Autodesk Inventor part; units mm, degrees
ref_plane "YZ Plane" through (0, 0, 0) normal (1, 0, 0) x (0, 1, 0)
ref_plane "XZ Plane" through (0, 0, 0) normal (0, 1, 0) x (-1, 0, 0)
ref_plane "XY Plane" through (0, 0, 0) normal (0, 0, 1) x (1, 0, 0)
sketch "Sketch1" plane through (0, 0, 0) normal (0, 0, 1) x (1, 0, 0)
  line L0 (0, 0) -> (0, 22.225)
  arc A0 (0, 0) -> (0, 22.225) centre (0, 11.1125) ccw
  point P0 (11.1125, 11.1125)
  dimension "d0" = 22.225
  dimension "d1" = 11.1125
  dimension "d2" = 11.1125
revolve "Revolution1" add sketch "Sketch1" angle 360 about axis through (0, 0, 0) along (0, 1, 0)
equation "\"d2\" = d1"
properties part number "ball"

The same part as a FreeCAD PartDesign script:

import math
import FreeCAD as App
import Part
import Sketcher
from FreeCAD import Vector
Q = App.Units.Quantity

doc = App.newDocument("Part")
params = doc.addObject("Spreadsheet::Sheet", "Params")
for row, (alias, value) in enumerate([
    ("sketch1_radius", "0.4375 in"),
    ("revolution_angle", "360 deg"),
], start=1):
    params.set(f"A{row}", alias)
    params.set(f"B{row}", "=" + value)
    params.setAlias(f"B{row}", alias)

body = doc.addObject("PartDesign::Body", "Body")

sketch1 = body.newObject("Sketcher::SketchObject", "Sketch")
sketch1.AttachmentSupport = (doc.getObject("XY_Plane"), [""])
sketch1.MapMode = "FlatFace"
sketch1.addGeometry([
    Part.LineSegment(Vector(0, 22, 0), Vector(0, 0, 0)),
    Part.ArcOfCircle(Part.Circle(Vector(0, 11, 0), Vector(0, 0, 1), 11), math.radians(-90), math.radians(90)),
], False)
sketch1.addConstraint([
    Sketcher.Constraint("Coincident", 0, 1, 1, 2),
    Sketcher.Constraint("Coincident", 1, 1, 0, 2),
    Sketcher.Constraint("Vertical", 0),
    Sketcher.Constraint("Coincident", 1, 1, -1, 1),
    Sketcher.Constraint("PointOnObject", 1, 3, -2),
    Sketcher.Constraint("Radius", 1, Q("0.4375 in")),
])
sketch1.setExpression("Constraints[5]", "Params.sketch1_radius")
revolution = body.newObject("PartDesign::Revolution", "Revolution")
revolution.Profile = sketch1
revolution.ReferenceAxis = (sketch1, ["V_Axis"])
revolution.setExpression("Angle", "Params.revolution_angle")

doc.recompute()
